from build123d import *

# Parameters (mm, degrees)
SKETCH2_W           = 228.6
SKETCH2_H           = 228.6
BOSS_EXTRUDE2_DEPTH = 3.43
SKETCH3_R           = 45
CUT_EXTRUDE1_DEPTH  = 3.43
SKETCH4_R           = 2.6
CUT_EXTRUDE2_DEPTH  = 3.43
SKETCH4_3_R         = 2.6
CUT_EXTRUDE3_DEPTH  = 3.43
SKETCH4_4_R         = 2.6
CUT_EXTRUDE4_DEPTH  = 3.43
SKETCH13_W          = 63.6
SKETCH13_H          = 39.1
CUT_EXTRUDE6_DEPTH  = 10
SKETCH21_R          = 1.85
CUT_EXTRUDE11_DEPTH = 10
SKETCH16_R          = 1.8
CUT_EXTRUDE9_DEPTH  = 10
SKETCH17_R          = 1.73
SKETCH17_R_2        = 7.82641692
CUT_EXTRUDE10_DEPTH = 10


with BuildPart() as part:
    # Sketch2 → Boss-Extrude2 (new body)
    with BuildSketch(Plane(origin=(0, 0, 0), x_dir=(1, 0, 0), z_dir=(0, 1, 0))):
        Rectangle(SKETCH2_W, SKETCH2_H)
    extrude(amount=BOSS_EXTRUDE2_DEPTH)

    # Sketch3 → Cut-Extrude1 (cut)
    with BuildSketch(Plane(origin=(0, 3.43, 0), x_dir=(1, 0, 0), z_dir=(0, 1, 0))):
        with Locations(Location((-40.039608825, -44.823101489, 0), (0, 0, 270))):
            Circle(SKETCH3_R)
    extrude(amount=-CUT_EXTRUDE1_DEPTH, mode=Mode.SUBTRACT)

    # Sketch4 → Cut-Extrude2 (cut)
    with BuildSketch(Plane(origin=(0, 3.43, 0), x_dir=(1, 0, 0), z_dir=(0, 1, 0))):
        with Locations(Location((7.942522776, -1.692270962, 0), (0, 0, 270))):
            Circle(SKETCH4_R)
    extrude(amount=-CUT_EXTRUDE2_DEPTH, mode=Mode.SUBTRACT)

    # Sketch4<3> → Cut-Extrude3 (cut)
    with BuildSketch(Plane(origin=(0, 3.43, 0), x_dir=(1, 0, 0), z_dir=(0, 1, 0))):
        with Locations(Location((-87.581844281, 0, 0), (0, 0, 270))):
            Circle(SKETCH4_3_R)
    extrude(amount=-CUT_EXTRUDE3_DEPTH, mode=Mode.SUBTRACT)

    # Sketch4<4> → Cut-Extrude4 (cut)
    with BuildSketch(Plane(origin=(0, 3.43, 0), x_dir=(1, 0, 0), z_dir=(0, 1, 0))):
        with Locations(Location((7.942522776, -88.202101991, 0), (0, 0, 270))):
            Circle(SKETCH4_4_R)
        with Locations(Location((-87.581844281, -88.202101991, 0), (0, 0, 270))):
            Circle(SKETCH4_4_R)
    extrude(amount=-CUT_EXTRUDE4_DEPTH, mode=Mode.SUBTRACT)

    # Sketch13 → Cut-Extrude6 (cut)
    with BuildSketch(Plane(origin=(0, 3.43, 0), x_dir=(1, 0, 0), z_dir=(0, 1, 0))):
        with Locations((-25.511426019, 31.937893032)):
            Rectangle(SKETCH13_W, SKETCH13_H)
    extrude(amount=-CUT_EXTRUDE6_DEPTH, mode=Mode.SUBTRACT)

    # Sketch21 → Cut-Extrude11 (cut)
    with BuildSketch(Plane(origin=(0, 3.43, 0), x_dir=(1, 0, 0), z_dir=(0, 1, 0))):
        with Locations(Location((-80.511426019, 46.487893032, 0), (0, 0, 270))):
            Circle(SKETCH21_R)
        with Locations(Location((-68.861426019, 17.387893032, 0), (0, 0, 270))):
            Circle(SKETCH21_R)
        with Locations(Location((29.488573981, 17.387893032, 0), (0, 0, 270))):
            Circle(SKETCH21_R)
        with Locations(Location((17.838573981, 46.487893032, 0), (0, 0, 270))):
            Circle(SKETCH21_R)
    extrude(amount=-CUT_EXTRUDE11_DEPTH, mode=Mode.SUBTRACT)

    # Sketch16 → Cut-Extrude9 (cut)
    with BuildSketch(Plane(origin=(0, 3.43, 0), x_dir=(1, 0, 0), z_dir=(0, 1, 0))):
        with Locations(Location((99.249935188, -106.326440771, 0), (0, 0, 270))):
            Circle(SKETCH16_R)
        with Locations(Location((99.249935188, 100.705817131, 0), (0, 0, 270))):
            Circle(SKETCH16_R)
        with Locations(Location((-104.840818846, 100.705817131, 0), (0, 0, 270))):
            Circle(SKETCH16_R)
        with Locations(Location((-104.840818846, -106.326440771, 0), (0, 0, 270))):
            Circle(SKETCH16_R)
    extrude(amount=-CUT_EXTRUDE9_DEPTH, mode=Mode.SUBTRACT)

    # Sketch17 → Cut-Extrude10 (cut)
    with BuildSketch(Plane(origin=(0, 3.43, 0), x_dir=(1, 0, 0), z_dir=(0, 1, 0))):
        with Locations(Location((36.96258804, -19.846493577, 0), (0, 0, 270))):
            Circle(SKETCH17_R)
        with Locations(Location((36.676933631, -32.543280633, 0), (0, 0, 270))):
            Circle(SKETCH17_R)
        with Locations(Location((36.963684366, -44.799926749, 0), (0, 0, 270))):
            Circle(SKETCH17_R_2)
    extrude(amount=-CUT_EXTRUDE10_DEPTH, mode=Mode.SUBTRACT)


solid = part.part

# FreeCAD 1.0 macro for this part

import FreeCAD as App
import Part
import Sketcher
Q = App.Units.Quantity

doc = App.newDocument("Part")
body = doc.addObject("PartDesign::Body", "Body")

sketch1 = body.newObject("Sketcher::SketchObject", "Sketch")
sketch1.AttachmentSupport = (doc.getObject("XZ_Plane"), [""])
sketch1.MapMode = "FlatFace"
sketch1.addGeometry(Part.LineSegment(App.Vector(-114, -114, 0), App.Vector(-114, 114, 0)), False)
sketch1.addGeometry(Part.LineSegment(App.Vector(-114, 114, 0), App.Vector(114, 114, 0)), False)
sketch1.addGeometry(Part.LineSegment(App.Vector(114, 114, 0), App.Vector(114, -114, 0)), False)
sketch1.addGeometry(Part.LineSegment(App.Vector(114, -114, 0), App.Vector(-114, -114, 0)), False)
sketch1.addConstraint(Sketcher.Constraint("Coincident", 0, 2, 1, 1))
sketch1.addConstraint(Sketcher.Constraint("Coincident", 1, 2, 2, 1))
sketch1.addConstraint(Sketcher.Constraint("Coincident", 2, 2, 3, 1))
sketch1.addConstraint(Sketcher.Constraint("Coincident", 3, 2, 0, 1))
sketch1.addConstraint(Sketcher.Constraint("Vertical", 0))
sketch1.addConstraint(Sketcher.Constraint("Horizontal", 1))
sketch1.addConstraint(Sketcher.Constraint("Vertical", 2))
sketch1.addConstraint(Sketcher.Constraint("Horizontal", 3))
sketch1.addConstraint(Sketcher.Constraint("Symmetric", 0, 2, 2, 2, -1, 1))
sketch1.addConstraint(Sketcher.Constraint("Equal", 3, 0))
sketch1.addConstraint(Sketcher.Constraint("DistanceX", 1, 1, 1, 2, Q("228.6 mm")))
pad1 = body.newObject("PartDesign::Pad", "Pad")
pad1.Profile = sketch1
pad1.Length = 3.43
pad1.Reversed = True

sketch2 = body.newObject("Sketcher::SketchObject", "Sketch001")
sketch2.AttachmentSupport = (doc.getObject("XZ_Plane"), [""])
sketch2.MapMode = "FlatFace"
sketch2.AttachmentOffset = App.Placement(App.Vector(0, 0, -3.43), App.Rotation())
sketch2.addGeometry(Part.Circle(App.Vector(-40, 45, 0), App.Vector(0, 0, 1), 45), False)
sketch2.addConstraint(Sketcher.Constraint("Diameter", 0, Q("90 mm")))
sketch2.addConstraint(Sketcher.Constraint("DistanceY", -1, 1, 0, 3, Q("44.823101 mm")))
sketch2.addConstraint(Sketcher.Constraint("DistanceX", 0, 3, -1, 1, Q("40.039609 mm")))
pocket1 = body.newObject("PartDesign::Pocket", "Pocket")
pocket1.Profile = sketch2
pocket1.Length = 3.43
pocket1.Reversed = True

sketch3 = body.newObject("Sketcher::SketchObject", "Sketch002")
sketch3.AttachmentSupport = (doc.getObject("XZ_Plane"), [""])
sketch3.MapMode = "FlatFace"
sketch3.AttachmentOffset = App.Placement(App.Vector(0, 0, -3.43), App.Rotation())
sketch3.addGeometry(Part.Circle(App.Vector(7.9, 1.7, 0), App.Vector(0, 0, 1), 2.6), False)
sketch3.addConstraint(Sketcher.Constraint("Diameter", 0, Q("5.2 mm")))
sketch3.addConstraint(Sketcher.Constraint("DistanceY", -1, 1, 0, 3, Q("1.692271 mm")))
sketch3.addConstraint(Sketcher.Constraint("DistanceX", -1, 1, 0, 3, Q("7.942523 mm")))
pocket2 = body.newObject("PartDesign::Pocket", "Pocket001")
pocket2.Profile = sketch3
pocket2.Length = 3.43
pocket2.Reversed = True

sketch4 = body.newObject("Sketcher::SketchObject", "Sketch003")
sketch4.AttachmentSupport = (doc.getObject("XZ_Plane"), [""])
sketch4.MapMode = "FlatFace"
sketch4.AttachmentOffset = App.Placement(App.Vector(0, 0, -3.43), App.Rotation())
sketch4.addGeometry(Part.Circle(App.Vector(-87.6, 0, 0), App.Vector(0, 0, 1), 2.6), False)
sketch4.addConstraint(Sketcher.Constraint("PointOnObject", 0, 3, -1))
sketch4.addConstraint(Sketcher.Constraint("Diameter", 0, Q("5.2 mm")))
sketch4.addConstraint(Sketcher.Constraint("DistanceX", 0, 3, -1, 1, Q("87.581844 mm")))
pocket3 = body.newObject("PartDesign::Pocket", "Pocket002")
pocket3.Profile = sketch4
pocket3.Length = 3.43
pocket3.Reversed = True

sketch5 = body.newObject("Sketcher::SketchObject", "Sketch004")
sketch5.AttachmentSupport = (doc.getObject("XZ_Plane"), [""])
sketch5.MapMode = "FlatFace"
sketch5.AttachmentOffset = App.Placement(App.Vector(0, 0, -3.43), App.Rotation())
sketch5.addGeometry(Part.Circle(App.Vector(7.9, 88.2, 0), App.Vector(0, 0, 1), 2.6), False)
sketch5.addGeometry(Part.Circle(App.Vector(-87.6, 88.2, 0), App.Vector(0, 0, 1), 2.6), False)
sketch5.addConstraint(Sketcher.Constraint("Equal", 0, 1))
sketch5.addConstraint(Sketcher.Constraint("Horizontal", 0, 3, 1, 3))
sketch5.addConstraint(Sketcher.Constraint("Diameter", 0, Q("5.2 mm")))
sketch5.addConstraint(Sketcher.Constraint("DistanceY", -1, 1, 0, 3, Q("88.202102 mm")))
sketch5.addConstraint(Sketcher.Constraint("DistanceX", -1, 1, 0, 3, Q("7.942523 mm")))
sketch5.addConstraint(Sketcher.Constraint("DistanceX", 1, 3, -1, 1, Q("87.581844 mm")))
pocket4 = body.newObject("PartDesign::Pocket", "Pocket003")
pocket4.Profile = sketch5
pocket4.Length = 3.43
pocket4.Reversed = True

sketch6 = body.newObject("Sketcher::SketchObject", "Sketch005")
sketch6.AttachmentSupport = (doc.getObject("XZ_Plane"), [""])
sketch6.MapMode = "FlatFace"
sketch6.AttachmentOffset = App.Placement(App.Vector(0, 0, -3.43), App.Rotation())
sketch6.addGeometry(Part.LineSegment(App.Vector(-57, -51, 0), App.Vector(-57, -12, 0)), False)
sketch6.addGeometry(Part.LineSegment(App.Vector(-57, -12, 0), App.Vector(6, -12, 0)), False)
sketch6.addGeometry(Part.LineSegment(App.Vector(6, -12, 0), App.Vector(6, -51, 0)), False)
sketch6.addGeometry(Part.LineSegment(App.Vector(6, -51, 0), App.Vector(-57, -51, 0)), False)
sketch6.addConstraint(Sketcher.Constraint("Coincident", 0, 2, 1, 1))
sketch6.addConstraint(Sketcher.Constraint("Coincident", 1, 2, 2, 1))
sketch6.addConstraint(Sketcher.Constraint("Coincident", 2, 2, 3, 1))
sketch6.addConstraint(Sketcher.Constraint("Coincident", 3, 2, 0, 1))
sketch6.addConstraint(Sketcher.Constraint("Vertical", 0))
sketch6.addConstraint(Sketcher.Constraint("Horizontal", 1))
sketch6.addConstraint(Sketcher.Constraint("Vertical", 2))
sketch6.addConstraint(Sketcher.Constraint("Horizontal", 3))
sketch6.addConstraint(Sketcher.Constraint("DistanceX", 1, 1, 1, 2, Q("63.6 mm")))
sketch6.addConstraint(Sketcher.Constraint("DistanceY", 0, 1, 0, 2, Q("39.1 mm")))
sketch6.addConstraint(Sketcher.Constraint("DistanceX", 0, 2, -1, 1, Q("57.311426 mm")))
sketch6.addConstraint(Sketcher.Constraint("DistanceY", 0, 2, -1, 1, Q("12.387893 mm")))
pocket5 = body.newObject("PartDesign::Pocket", "Pocket004")
pocket5.Profile = sketch6
pocket5.Length = 10
pocket5.Reversed = True

sketch7 = body.newObject("Sketcher::SketchObject", "Sketch006")
sketch7.AttachmentSupport = (doc.getObject("XZ_Plane"), [""])
sketch7.MapMode = "FlatFace"
sketch7.AttachmentOffset = App.Placement(App.Vector(0, 0, -3.43), App.Rotation())
sketch7.addGeometry(Part.Circle(App.Vector(-80.5, -46.5, 0), App.Vector(0, 0, 1), 1.9), False)
sketch7.addGeometry(Part.Circle(App.Vector(-68.9, -17.4, 0), App.Vector(0, 0, 1), 1.9), False)
sketch7.addGeometry(Part.Circle(App.Vector(29.5, -17.4, 0), App.Vector(0, 0, 1), 1.9), False)
sketch7.addGeometry(Part.Circle(App.Vector(17.8, -46.5, 0), App.Vector(0, 0, 1), 1.9), False)
sketch7.addConstraint(Sketcher.Constraint("Equal", 0, 1))
sketch7.addConstraint(Sketcher.Constraint("Equal", 1, 2))
sketch7.addConstraint(Sketcher.Constraint("Equal", 2, 3))
sketch7.addConstraint(Sketcher.Constraint("Horizontal", 1, 3, 2, 3))
sketch7.addConstraint(Sketcher.Constraint("Horizontal", 0, 3, 3, 3))
sketch7.addConstraint(Sketcher.Constraint("Diameter", 0, Q("3.7 mm")))
sketch7.addConstraint(Sketcher.Constraint("DistanceX", 0, 3, 2, 3, Q("110 mm")))
sketch7.addConstraint(Sketcher.Constraint("DistanceY", 0, 3, 1, 3, Q("29.1 mm")))
sketch7.addConstraint(Sketcher.Constraint("DistanceX", 1, 3, 3, 3, Q("86.7 mm")))
sketch7.addConstraint(Sketcher.Constraint("DistanceX", 0, 3, 1, 3, Q("11.65 mm")))
sketch7.addConstraint(Sketcher.Constraint("DistanceX", 0, 3, -1, 1, Q("80.511426 mm")))
sketch7.addConstraint(Sketcher.Constraint("DistanceY", 0, 3, -1, 1, Q("46.487893 mm")))
pocket6 = body.newObject("PartDesign::Pocket", "Pocket005")
pocket6.Profile = sketch7
pocket6.Length = 10
pocket6.Reversed = True

sketch8 = body.newObject("Sketcher::SketchObject", "Sketch007")
sketch8.AttachmentSupport = (doc.getObject("XZ_Plane"), [""])
sketch8.MapMode = "FlatFace"
sketch8.AttachmentOffset = App.Placement(App.Vector(0, 0, -3.43), App.Rotation())
sketch8.addGeometry(Part.Circle(App.Vector(99.2, 106.3, 0), App.Vector(0, 0, 1), 1.8), False)
sketch8.addGeometry(Part.Circle(App.Vector(99.2, -100.7, 0), App.Vector(0, 0, 1), 1.8), False)
sketch8.addGeometry(Part.Circle(App.Vector(-104.8, -100.7, 0), App.Vector(0, 0, 1), 1.8), False)
sketch8.addGeometry(Part.Circle(App.Vector(-104.8, 106.3, 0), App.Vector(0, 0, 1), 1.8), False)
sketch8.addConstraint(Sketcher.Constraint("Equal", 0, 1))
sketch8.addConstraint(Sketcher.Constraint("Equal", 1, 2))
sketch8.addConstraint(Sketcher.Constraint("Equal", 2, 3))
sketch8.addConstraint(Sketcher.Constraint("Horizontal", 1, 3, 2, 3))
sketch8.addConstraint(Sketcher.Constraint("Horizontal", 0, 3, 3, 3))
sketch8.addConstraint(Sketcher.Constraint("Vertical", 0, 3, 1, 3))
sketch8.addConstraint(Sketcher.Constraint("Vertical", 2, 3, 3, 3))
sketch8.addConstraint(Sketcher.Constraint("Diameter", 0, Q("3.6 mm")))
sketch8.addConstraint(Sketcher.Constraint("DistanceY", -1, 1, 0, 3, Q("106.326441 mm")))
sketch8.addConstraint(Sketcher.Constraint("DistanceX", 2, 3, -1, 1, Q("104.840819 mm")))
sketch8.addConstraint(Sketcher.Constraint("DistanceX", -1, 1, 0, 3, Q("99.249935 mm")))
sketch8.addConstraint(Sketcher.Constraint("DistanceY", 1, 3, -1, 1, Q("100.705817 mm")))
pocket7 = body.newObject("PartDesign::Pocket", "Pocket006")
pocket7.Profile = sketch8
pocket7.Length = 10
pocket7.Reversed = True

sketch9 = body.newObject("Sketcher::SketchObject", "Sketch008")
sketch9.AttachmentSupport = (doc.getObject("XZ_Plane"), [""])
sketch9.MapMode = "FlatFace"
sketch9.AttachmentOffset = App.Placement(App.Vector(0, 0, -3.43), App.Rotation())
sketch9.addGeometry(Part.Circle(App.Vector(37, 19.8, 0), App.Vector(0, 0, 1), 1.7), False)
sketch9.addGeometry(Part.Circle(App.Vector(36.7, 32.5, 0), App.Vector(0, 0, 1), 1.7), False)
sketch9.addGeometry(Part.Circle(App.Vector(37, 44.8, 0), App.Vector(0, 0, 1), 7.8), False)
sketch9.addConstraint(Sketcher.Constraint("Equal", 0, 1))
sketch9.addConstraint(Sketcher.Constraint("Diameter", 0, Q("3.46 mm")))
sketch9.addConstraint(Sketcher.Constraint("Diameter", 2, Q("15.652834 mm")))
sketch9.addConstraint(Sketcher.Constraint("DistanceX", -1, 1, 0, 3, Q("36.962588 mm")))
sketch9.addConstraint(Sketcher.Constraint("DistanceY", -1, 1, 1, 3, Q("32.543281 mm")))
sketch9.addConstraint(Sketcher.Constraint("DistanceX", 1, 3, 2, 3, Q("0.286751 mm")))
sketch9.addConstraint(Sketcher.Constraint("DistanceY", -1, 1, 0, 3, Q("19.846494 mm")))
sketch9.addConstraint(Sketcher.Constraint("DistanceX", -1, 1, 1, 3, Q("36.676934 mm")))
sketch9.addConstraint(Sketcher.Constraint("DistanceY", -1, 1, 2, 3, Q("44.799927 mm")))
pocket8 = body.newObject("PartDesign::Pocket", "Pocket007")
pocket8.Profile = sketch9
pocket8.Length = 10
pocket8.Reversed = True

doc.recompute()
